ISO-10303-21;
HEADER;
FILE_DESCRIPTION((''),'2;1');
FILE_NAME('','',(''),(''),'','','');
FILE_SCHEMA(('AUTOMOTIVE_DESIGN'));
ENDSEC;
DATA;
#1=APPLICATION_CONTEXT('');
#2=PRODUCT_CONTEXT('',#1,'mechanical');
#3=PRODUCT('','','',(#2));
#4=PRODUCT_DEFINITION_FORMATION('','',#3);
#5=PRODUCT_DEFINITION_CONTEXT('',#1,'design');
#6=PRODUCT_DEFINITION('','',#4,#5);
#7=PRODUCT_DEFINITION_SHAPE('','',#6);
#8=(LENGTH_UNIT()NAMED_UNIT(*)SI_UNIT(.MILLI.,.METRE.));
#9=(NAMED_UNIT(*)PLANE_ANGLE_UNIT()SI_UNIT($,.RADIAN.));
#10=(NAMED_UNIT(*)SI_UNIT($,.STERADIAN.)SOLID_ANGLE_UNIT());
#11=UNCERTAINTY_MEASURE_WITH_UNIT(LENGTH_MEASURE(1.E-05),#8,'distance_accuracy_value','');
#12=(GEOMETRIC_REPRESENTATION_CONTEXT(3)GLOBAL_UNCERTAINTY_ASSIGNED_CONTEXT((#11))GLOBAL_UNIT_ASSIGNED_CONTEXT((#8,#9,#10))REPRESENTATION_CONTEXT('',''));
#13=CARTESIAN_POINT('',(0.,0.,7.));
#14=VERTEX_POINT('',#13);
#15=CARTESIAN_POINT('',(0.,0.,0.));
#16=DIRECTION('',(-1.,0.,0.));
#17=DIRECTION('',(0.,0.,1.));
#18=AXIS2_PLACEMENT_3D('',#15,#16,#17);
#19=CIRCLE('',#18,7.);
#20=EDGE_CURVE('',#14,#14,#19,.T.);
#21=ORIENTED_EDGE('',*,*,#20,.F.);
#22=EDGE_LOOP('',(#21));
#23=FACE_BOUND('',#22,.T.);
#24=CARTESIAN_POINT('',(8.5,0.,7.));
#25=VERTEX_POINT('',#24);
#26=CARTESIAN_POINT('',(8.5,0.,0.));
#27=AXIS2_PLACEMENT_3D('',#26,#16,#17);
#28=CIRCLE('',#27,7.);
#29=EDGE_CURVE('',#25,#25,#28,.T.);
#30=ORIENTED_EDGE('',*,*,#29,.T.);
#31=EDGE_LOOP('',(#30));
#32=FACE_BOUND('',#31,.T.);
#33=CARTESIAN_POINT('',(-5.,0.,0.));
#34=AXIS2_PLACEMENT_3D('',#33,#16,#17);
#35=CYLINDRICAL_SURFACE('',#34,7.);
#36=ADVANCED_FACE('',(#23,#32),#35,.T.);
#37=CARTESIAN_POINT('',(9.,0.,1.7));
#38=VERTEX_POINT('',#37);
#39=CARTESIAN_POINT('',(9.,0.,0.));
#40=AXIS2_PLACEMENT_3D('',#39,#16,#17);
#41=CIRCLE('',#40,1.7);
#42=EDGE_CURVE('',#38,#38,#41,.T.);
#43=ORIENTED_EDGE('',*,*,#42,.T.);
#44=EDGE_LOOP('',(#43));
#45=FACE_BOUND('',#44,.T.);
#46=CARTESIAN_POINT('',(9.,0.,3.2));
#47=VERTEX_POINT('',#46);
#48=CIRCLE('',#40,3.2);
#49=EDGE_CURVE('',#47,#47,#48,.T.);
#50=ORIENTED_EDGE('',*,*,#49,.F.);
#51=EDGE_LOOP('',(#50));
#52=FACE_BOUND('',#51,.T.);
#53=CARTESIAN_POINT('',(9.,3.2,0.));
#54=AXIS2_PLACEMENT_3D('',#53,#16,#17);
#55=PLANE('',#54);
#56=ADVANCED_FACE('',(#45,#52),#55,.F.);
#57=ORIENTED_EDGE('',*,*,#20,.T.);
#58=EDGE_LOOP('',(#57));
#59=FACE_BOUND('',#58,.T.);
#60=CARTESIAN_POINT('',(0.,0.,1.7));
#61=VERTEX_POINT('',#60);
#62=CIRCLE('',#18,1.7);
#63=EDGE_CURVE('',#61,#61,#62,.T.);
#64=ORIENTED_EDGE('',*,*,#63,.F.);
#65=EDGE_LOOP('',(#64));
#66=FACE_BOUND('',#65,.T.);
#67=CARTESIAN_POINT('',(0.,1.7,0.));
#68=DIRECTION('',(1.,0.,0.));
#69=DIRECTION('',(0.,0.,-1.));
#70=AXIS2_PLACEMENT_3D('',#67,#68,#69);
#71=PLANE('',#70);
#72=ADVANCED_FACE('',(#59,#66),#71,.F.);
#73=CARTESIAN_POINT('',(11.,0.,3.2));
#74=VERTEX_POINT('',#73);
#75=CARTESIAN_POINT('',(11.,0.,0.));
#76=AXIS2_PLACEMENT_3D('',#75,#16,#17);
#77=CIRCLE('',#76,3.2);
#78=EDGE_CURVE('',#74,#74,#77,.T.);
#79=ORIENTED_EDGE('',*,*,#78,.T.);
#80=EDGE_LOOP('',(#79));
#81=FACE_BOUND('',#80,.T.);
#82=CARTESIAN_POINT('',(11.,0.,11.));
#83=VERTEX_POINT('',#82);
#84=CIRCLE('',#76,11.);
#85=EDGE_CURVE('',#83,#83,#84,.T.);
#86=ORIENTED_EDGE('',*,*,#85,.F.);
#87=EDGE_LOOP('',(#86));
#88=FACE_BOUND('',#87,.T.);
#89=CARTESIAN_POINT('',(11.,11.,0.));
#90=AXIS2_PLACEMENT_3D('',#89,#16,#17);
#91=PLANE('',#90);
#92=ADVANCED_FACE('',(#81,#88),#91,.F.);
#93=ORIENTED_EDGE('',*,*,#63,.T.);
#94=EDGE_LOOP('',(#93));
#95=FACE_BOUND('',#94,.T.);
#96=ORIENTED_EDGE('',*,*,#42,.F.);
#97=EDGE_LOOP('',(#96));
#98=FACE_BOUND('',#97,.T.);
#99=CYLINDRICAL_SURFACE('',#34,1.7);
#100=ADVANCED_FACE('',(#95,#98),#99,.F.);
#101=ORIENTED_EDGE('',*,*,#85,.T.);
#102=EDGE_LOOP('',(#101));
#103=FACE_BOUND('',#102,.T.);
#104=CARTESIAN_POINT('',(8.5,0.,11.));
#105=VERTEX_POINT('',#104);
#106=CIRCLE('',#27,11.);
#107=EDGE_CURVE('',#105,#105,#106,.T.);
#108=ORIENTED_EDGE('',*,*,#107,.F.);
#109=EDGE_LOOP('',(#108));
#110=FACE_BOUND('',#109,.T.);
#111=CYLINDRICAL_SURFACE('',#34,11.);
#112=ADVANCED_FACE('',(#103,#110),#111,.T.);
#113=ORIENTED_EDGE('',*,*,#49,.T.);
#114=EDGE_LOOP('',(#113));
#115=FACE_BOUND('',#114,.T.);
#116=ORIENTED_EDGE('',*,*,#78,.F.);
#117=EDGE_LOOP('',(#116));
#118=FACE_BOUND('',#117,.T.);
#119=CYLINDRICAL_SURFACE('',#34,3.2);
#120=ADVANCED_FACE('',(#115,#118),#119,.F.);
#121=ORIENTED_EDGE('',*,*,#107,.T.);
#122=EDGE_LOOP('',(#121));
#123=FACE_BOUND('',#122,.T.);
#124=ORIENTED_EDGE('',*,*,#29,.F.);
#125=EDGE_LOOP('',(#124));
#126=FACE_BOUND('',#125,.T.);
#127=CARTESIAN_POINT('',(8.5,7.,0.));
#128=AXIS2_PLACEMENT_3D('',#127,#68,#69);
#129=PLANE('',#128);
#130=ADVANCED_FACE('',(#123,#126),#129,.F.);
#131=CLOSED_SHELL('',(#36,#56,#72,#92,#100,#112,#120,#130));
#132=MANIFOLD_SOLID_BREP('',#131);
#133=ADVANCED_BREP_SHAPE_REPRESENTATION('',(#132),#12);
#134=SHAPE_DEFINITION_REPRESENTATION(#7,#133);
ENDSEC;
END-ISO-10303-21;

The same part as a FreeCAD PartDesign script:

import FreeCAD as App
import Part
import Sketcher

V = App.Vector

doc = App.newDocument("Part")
params = doc.addObject("Spreadsheet::Sheet", "Params")
for row, (alias, value) in enumerate([
    ("sketch1_width", "9 mm"),
    ("sketch1_width2", "2 mm"),
    ("sketch1_height", "4 mm"),
    ("sketch1_width3", "2.5 mm"),
    ("sketch1_height2", "5.3 mm"),
    ("revolution_angle", "360 deg"),
], start=1):
    params.set(f"A{row}", alias)
    params.set(f"B{row}", "=" + value)
    params.setAlias(f"B{row}", alias)

body = doc.addObject("PartDesign::Body", "Body")

# Sketch on XY plane
sketch1 = body.newObject("Sketcher::SketchObject", "Sketch")
sketch1.AttachmentSupport = (doc.getObject("XY_Plane"), [""])
sketch1.MapMode = "FlatFace"
sketch1.addGeometry([
    Part.LineSegment(V(0, 7, 0), V(0, 1.7, 0)),  # 0
    Part.LineSegment(V(0, 1.7, 0), V(9, 1.7, 0)),  # 1
    Part.LineSegment(V(9, 1.7, 0), V(9, 3.2, 0)),  # 2
    Part.LineSegment(V(9, 3.2, 0), V(11, 3.2, 0)),  # 3
    Part.LineSegment(V(11, 3.2, 0), V(11, 11, 0)),  # 4
    Part.LineSegment(V(11, 11, 0), V(8.5, 11, 0)),  # 5
    Part.LineSegment(V(8.5, 11, 0), V(8.5, 7, 0)),  # 6
    Part.LineSegment(V(8.5, 7, 0), V(0, 7, 0)),  # 7
], False)
sketch1.addConstraint([
    Sketcher.Constraint("Coincident", 0, 2, 1, 1),
    Sketcher.Constraint("Coincident", 1, 2, 2, 1),
    Sketcher.Constraint("Coincident", 2, 2, 3, 1),
    Sketcher.Constraint("Coincident", 3, 2, 4, 1),
    Sketcher.Constraint("Coincident", 4, 2, 5, 1),
    Sketcher.Constraint("Coincident", 5, 2, 6, 1),
    Sketcher.Constraint("Coincident", 6, 2, 7, 1),
    Sketcher.Constraint("Coincident", 7, 2, 0, 1),
    Sketcher.Constraint("Vertical", 0),
    Sketcher.Constraint("Horizontal", 1),
    Sketcher.Constraint("Vertical", 2),
    Sketcher.Constraint("Horizontal", 3),
    Sketcher.Constraint("Vertical", 4),
    Sketcher.Constraint("Horizontal", 5),
    Sketcher.Constraint("Vertical", 6),
    Sketcher.Constraint("Horizontal", 7),
    Sketcher.Constraint("PointOnObject", 0, 2, -2),
    Sketcher.Constraint("DistanceX", 1, 1, 1, 2, 9.0),
    Sketcher.Constraint("DistanceX", 3, 1, 3, 2, 2.0),
    Sketcher.Constraint("DistanceY", 6, 2, 6, 1, 4.0),
    Sketcher.Constraint("DistanceX", 5, 2, 5, 1, 2.5),
    Sketcher.Constraint("DistanceY", 0, 2, 0, 1, 5.3),
    Sketcher.Constraint("DistanceY", 2, 1, 2, 2, 1.5),
    Sketcher.Constraint("DistanceY", -1, 1, 4, 2, 11.0),
])
sketch1.setExpression("Constraints[17]", "Params.sketch1_width")
sketch1.setExpression("Constraints[18]", "Params.sketch1_width2")
sketch1.setExpression("Constraints[19]", "Params.sketch1_height")
sketch1.setExpression("Constraints[20]", "Params.sketch1_width3")
sketch1.setExpression("Constraints[21]", "Params.sketch1_height2")
revolution = body.newObject("PartDesign::Revolution", "Revolution")
revolution.Profile = sketch1
revolution.ReferenceAxis = (sketch1, ["H_Axis"])
revolution.setExpression("Angle", "Params.revolution_angle")

doc.recompute()
